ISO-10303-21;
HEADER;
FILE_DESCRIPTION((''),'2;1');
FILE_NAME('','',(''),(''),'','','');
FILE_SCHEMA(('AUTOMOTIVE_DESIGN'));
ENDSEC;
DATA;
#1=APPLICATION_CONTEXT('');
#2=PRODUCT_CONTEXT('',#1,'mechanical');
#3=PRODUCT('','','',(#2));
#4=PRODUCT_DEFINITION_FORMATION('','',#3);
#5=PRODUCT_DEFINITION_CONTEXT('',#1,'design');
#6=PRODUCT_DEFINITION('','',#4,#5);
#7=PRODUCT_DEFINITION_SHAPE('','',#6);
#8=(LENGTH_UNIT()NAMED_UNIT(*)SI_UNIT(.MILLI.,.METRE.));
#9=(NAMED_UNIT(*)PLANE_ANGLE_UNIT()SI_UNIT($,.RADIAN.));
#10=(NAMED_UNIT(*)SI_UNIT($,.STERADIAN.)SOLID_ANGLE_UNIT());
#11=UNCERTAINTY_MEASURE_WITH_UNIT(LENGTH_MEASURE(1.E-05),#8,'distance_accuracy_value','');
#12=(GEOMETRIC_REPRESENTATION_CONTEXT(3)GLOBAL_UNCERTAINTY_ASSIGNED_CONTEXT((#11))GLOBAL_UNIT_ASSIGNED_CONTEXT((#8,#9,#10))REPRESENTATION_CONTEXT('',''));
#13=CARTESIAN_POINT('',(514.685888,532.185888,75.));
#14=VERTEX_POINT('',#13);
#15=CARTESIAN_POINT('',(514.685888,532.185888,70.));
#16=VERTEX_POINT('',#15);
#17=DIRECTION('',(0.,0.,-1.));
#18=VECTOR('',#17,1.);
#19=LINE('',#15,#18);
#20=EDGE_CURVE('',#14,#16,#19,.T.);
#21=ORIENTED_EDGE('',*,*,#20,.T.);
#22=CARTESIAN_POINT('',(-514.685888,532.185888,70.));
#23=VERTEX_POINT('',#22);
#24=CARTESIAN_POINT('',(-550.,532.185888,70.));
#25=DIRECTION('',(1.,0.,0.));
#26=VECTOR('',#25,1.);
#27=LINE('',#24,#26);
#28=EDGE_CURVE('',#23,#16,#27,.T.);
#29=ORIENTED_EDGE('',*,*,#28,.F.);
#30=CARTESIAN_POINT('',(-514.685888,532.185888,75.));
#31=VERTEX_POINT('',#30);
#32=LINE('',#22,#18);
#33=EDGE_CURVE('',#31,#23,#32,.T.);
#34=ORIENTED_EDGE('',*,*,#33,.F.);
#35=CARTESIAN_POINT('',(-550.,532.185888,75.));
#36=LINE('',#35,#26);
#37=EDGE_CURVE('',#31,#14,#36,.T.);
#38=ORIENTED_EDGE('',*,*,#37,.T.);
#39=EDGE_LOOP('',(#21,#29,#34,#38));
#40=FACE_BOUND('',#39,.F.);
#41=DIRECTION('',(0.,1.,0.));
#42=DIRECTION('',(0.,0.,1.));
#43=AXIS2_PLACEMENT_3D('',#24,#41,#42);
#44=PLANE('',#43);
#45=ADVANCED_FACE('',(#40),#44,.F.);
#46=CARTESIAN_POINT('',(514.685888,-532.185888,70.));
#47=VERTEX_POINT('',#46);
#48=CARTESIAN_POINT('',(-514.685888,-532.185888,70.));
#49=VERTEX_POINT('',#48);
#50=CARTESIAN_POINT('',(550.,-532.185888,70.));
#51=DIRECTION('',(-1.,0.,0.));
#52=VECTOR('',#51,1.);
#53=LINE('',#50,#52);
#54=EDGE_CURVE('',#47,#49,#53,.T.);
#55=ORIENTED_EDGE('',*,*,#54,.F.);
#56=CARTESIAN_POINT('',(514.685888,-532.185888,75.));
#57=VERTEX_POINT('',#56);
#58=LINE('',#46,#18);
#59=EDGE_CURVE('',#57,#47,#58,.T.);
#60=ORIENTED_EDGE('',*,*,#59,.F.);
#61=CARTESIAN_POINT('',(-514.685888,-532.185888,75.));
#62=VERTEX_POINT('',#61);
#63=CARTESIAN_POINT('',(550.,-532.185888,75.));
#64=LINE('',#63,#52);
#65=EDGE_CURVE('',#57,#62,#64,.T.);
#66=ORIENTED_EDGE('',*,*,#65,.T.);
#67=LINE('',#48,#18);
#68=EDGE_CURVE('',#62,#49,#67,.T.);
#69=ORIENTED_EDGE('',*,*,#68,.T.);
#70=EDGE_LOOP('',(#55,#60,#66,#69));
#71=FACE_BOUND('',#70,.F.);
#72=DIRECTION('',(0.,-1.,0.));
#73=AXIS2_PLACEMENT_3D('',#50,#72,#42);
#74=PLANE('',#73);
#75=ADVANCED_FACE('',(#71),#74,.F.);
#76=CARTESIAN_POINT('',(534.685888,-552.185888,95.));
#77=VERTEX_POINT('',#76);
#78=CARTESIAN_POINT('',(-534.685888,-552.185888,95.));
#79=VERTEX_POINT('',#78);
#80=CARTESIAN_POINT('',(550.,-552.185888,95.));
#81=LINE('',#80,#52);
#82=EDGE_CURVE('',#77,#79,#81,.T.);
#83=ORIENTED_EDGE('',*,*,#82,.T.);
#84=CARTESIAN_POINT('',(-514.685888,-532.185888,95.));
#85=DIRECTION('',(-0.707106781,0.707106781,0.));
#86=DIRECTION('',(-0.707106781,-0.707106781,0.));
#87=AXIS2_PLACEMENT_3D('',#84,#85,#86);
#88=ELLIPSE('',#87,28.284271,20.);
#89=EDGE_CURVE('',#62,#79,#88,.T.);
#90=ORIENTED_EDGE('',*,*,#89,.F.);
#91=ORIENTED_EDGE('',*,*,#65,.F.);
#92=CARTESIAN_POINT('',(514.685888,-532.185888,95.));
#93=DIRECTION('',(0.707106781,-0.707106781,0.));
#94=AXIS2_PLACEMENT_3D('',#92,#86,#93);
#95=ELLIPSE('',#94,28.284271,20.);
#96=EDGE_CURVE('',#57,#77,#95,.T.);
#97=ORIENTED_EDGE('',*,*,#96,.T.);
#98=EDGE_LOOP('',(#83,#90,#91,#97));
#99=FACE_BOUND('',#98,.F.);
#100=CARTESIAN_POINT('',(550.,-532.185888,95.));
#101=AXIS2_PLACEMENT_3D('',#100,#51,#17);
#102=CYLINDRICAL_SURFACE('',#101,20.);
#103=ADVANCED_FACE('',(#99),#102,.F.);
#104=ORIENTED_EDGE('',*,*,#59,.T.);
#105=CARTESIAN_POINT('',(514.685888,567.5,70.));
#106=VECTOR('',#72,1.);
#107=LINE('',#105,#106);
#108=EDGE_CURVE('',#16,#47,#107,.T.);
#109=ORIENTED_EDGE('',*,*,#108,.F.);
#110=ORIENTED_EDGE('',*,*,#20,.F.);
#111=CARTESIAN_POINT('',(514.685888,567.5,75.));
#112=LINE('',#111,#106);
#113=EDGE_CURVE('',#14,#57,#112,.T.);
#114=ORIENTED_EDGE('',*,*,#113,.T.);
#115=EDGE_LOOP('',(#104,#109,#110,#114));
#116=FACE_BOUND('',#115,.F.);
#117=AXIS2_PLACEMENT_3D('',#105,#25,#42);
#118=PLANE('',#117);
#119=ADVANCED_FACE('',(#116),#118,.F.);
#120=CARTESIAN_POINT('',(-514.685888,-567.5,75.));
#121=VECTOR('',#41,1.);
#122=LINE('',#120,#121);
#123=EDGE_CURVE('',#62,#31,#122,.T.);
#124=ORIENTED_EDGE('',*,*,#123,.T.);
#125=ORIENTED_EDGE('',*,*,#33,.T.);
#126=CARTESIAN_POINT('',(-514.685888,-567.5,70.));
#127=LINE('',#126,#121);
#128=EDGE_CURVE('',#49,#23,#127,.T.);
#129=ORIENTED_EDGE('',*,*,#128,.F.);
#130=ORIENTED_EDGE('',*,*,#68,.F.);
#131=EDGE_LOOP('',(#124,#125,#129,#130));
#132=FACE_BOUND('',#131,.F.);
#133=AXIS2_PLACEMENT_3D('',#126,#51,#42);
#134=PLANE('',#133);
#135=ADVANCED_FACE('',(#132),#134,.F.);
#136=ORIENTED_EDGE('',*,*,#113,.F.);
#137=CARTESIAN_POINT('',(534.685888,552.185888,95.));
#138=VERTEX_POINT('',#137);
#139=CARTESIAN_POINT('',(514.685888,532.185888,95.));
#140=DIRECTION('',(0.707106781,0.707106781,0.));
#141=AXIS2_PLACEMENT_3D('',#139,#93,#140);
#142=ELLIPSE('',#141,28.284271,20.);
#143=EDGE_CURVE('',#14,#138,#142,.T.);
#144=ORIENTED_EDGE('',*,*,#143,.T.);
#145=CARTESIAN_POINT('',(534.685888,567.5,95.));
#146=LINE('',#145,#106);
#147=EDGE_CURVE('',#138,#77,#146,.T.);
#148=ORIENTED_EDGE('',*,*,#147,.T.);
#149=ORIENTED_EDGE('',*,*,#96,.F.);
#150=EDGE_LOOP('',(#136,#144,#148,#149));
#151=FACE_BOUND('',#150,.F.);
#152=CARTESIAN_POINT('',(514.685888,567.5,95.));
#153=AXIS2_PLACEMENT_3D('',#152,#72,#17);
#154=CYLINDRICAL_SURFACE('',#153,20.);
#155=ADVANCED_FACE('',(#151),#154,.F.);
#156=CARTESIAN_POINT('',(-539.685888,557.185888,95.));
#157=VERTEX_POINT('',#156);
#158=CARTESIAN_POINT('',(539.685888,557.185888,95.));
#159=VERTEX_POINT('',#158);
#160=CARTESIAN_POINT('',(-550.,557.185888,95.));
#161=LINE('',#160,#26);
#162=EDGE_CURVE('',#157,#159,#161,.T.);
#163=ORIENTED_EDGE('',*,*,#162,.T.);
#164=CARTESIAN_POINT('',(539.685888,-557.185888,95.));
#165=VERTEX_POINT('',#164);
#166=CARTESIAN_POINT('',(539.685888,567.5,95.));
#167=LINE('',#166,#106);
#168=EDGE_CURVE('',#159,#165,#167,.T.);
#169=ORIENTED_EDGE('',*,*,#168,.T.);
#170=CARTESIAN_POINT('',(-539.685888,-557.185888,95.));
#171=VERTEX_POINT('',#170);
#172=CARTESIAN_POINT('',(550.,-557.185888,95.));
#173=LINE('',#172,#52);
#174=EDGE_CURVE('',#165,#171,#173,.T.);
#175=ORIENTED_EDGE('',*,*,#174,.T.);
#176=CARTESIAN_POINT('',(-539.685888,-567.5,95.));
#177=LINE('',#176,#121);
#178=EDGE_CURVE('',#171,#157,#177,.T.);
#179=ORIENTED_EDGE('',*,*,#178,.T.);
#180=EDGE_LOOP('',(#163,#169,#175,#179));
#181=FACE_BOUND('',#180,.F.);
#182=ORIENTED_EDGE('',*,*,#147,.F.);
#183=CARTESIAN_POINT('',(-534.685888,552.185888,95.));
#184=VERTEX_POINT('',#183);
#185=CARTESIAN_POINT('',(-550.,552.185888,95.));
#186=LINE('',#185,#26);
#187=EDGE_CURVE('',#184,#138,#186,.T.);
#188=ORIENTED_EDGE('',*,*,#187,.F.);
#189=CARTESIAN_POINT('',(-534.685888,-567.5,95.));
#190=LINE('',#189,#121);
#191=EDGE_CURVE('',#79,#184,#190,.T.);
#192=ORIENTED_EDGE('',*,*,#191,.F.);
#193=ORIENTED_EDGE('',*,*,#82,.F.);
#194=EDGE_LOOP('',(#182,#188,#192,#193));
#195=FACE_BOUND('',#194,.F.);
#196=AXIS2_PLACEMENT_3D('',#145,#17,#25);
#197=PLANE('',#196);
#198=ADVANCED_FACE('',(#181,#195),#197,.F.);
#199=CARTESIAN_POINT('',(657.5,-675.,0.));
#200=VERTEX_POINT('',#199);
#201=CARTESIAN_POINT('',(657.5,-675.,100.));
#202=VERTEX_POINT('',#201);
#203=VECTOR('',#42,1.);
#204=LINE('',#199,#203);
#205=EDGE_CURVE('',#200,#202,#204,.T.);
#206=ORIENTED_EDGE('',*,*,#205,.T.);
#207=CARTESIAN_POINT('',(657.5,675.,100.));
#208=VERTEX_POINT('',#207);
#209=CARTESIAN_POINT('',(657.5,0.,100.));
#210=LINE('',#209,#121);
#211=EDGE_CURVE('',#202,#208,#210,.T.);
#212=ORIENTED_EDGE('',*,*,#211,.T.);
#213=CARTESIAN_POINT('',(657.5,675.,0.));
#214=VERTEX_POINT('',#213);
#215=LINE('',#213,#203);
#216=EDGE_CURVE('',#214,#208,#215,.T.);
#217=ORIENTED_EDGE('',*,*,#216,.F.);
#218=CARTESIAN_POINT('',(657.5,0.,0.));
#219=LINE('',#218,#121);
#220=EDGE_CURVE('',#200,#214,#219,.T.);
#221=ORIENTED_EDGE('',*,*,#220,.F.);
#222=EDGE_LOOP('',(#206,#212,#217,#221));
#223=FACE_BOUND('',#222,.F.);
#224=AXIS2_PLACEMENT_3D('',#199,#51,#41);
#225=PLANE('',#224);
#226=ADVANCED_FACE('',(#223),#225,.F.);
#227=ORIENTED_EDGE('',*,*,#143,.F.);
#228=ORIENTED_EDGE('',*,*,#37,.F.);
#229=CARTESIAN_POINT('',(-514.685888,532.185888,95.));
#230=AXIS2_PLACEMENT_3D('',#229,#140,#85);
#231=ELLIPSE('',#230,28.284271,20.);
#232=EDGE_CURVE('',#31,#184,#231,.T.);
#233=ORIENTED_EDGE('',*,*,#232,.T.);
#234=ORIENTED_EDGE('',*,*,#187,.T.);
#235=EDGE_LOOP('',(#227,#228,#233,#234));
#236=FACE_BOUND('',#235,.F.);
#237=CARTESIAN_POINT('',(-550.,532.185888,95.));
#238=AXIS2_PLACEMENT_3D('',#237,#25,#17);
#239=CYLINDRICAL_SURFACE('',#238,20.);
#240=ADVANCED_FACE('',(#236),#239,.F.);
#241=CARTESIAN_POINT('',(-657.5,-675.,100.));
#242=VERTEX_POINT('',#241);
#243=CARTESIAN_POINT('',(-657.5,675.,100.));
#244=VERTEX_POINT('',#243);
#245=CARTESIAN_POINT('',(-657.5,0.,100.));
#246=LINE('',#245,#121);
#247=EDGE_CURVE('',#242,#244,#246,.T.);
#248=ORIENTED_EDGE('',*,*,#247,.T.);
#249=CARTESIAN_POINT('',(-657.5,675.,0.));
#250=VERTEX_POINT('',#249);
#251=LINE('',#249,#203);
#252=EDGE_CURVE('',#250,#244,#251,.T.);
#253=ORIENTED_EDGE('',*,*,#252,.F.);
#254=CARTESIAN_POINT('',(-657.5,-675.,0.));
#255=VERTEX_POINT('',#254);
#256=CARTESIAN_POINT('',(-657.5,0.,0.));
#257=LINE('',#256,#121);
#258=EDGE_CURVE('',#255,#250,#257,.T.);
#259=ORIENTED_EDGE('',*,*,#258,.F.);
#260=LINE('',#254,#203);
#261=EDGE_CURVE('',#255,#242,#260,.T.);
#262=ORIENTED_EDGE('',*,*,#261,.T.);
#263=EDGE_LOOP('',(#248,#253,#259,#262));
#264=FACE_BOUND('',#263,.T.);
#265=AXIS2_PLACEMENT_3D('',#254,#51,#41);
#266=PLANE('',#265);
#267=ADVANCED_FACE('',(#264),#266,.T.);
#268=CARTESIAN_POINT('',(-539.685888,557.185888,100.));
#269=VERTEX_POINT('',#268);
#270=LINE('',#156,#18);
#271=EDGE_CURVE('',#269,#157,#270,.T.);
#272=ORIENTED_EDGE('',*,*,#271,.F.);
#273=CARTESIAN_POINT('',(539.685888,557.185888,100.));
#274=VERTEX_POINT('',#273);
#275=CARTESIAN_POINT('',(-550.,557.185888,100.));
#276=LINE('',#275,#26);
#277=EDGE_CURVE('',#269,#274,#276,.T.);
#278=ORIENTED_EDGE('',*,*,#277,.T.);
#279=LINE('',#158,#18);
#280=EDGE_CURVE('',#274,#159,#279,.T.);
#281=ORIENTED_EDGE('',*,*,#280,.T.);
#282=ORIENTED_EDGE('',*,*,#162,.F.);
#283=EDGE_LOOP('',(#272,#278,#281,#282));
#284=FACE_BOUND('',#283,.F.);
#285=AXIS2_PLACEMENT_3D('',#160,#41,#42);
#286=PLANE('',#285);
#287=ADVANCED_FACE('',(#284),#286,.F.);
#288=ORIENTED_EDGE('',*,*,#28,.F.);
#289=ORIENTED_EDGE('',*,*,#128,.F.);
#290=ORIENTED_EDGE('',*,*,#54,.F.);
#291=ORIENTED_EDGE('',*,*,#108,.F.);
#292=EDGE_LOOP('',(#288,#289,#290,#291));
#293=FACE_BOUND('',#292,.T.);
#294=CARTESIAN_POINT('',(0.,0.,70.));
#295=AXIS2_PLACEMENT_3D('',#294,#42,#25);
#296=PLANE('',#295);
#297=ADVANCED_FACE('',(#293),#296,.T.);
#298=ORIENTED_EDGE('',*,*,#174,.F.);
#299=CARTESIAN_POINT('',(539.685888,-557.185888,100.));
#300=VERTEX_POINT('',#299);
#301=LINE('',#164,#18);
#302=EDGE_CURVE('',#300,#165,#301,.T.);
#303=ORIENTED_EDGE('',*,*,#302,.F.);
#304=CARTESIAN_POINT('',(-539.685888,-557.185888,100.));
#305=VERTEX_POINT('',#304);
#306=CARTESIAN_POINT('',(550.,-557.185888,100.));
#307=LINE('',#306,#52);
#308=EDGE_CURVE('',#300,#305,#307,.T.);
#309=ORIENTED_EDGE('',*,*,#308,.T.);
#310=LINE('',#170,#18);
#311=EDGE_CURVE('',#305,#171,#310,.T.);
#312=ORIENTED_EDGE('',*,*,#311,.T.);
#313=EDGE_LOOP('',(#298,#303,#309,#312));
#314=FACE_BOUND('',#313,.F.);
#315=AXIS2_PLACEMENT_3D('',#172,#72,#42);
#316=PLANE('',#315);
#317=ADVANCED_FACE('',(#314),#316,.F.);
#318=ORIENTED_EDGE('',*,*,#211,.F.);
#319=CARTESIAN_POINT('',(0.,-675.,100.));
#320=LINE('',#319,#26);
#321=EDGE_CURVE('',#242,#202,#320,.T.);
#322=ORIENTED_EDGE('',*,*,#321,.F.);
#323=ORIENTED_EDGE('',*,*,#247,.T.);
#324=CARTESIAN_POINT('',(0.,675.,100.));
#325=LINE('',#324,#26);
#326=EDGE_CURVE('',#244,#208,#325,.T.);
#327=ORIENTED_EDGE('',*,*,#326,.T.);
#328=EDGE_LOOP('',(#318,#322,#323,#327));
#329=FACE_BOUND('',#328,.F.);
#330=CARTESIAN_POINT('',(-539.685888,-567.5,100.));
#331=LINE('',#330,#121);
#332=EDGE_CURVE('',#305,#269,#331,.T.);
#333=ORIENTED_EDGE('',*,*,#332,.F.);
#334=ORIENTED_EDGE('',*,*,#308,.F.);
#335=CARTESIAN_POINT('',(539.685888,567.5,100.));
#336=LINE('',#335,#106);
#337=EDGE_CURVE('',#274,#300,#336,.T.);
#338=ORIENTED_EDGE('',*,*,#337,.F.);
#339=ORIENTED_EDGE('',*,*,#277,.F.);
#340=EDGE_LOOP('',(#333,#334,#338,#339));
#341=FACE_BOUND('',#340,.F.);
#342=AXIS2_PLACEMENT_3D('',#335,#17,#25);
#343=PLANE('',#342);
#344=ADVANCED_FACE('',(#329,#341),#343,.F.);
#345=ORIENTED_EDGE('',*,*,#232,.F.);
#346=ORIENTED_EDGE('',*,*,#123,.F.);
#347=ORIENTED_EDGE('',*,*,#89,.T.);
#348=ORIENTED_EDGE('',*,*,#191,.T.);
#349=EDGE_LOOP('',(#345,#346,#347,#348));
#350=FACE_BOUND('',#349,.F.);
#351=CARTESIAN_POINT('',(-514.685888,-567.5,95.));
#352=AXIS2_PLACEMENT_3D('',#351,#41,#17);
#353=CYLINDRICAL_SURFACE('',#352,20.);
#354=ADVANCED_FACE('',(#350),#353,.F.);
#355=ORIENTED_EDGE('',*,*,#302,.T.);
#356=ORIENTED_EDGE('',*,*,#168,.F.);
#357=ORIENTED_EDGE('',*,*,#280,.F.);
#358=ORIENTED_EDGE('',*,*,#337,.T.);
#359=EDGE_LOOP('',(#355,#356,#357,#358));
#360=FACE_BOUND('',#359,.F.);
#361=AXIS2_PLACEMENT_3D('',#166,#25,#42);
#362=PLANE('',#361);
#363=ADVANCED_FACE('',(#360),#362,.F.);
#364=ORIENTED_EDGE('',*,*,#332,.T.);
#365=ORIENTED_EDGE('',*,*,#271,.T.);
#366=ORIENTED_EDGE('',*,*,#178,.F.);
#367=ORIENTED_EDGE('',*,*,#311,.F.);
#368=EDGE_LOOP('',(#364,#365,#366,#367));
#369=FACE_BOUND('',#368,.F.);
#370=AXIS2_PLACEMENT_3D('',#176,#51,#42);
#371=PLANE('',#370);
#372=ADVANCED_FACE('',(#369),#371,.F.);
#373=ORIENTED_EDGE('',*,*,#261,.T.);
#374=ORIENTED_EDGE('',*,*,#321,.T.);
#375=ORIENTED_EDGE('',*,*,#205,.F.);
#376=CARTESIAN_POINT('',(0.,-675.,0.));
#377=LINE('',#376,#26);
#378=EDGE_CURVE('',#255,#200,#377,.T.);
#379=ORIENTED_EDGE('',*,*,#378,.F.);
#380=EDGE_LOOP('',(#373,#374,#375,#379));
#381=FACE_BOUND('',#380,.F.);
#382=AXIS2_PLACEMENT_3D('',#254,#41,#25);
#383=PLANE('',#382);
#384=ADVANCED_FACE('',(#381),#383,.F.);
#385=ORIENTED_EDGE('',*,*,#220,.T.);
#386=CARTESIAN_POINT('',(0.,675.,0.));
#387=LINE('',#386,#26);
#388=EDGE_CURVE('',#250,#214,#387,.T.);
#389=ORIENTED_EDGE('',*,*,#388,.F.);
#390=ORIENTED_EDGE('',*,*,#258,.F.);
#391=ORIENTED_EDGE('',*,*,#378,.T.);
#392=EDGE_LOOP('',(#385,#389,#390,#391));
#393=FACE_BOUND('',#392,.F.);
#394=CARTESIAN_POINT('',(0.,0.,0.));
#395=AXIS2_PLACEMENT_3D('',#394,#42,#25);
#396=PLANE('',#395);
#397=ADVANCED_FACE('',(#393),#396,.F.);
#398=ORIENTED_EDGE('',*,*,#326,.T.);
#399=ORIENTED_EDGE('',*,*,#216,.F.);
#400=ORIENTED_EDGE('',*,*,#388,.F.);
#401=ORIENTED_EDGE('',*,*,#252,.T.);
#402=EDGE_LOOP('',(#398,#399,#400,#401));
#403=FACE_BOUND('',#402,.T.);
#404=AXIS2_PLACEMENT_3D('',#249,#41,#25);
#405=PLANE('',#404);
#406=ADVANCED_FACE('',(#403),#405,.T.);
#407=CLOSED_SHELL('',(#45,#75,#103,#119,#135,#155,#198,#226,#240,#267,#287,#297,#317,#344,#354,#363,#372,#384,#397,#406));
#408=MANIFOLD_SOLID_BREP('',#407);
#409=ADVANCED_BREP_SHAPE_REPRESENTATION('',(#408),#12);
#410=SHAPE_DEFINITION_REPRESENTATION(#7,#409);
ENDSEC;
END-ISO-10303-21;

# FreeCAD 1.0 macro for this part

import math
import FreeCAD as App
import Part
import Sketcher

V = App.Vector
Q = App.Units.Quantity

doc = App.newDocument("Part")
body = doc.addObject("PartDesign::Body", "Body")

sketch1 = body.newObject("Sketcher::SketchObject", "Sketch")
sketch1.AttachmentSupport = (doc.getObject("XY_Plane"), [""])
sketch1.MapMode = "FlatFace"
sketch1.addGeometry([
    Part.LineSegment(V(-658, 675, 0), V(-658, -675, 0)),
    Part.LineSegment(V(-658, -675, 0), V(658, -675, 0)),
    Part.LineSegment(V(658, -675, 0), V(658, 675, 0)),
    Part.LineSegment(V(658, 675, 0), V(-658, 675, 0)),
], False)
sketch1.addConstraint([
    Sketcher.Constraint("Coincident", 0, 2, 1, 1),
    Sketcher.Constraint("Coincident", 1, 2, 2, 1),
    Sketcher.Constraint("Coincident", 2, 2, 3, 1),
    Sketcher.Constraint("Coincident", 3, 2, 0, 1),
    Sketcher.Constraint("Vertical", 0),
    Sketcher.Constraint("Horizontal", 1),
    Sketcher.Constraint("Vertical", 2),
    Sketcher.Constraint("Horizontal", 3),
    Sketcher.Constraint("Symmetric", 0, 2, 2, 2, -1, 1),
    Sketcher.Constraint("DistanceX", 1, 1, 1, 2, Q("1315 mm")),
    Sketcher.Constraint("DistanceY", 0, 2, 0, 1, Q("1350 mm")),
])
pad1 = body.newObject("PartDesign::Pad", "Pad")
pad1.Profile = sketch1
pad1.Length = 100

sketch2 = body.newObject("Sketcher::SketchObject", "Sketch001")
sketch2.AttachmentSupport = (doc.getObject("XY_Plane"), [""])
sketch2.MapMode = "FlatFace"
sketch2.AttachmentOffset = App.Placement(V(0, 0, 100), App.Rotation())
sketch2.addGeometry([
    Part.LineSegment(V(-550, 568, 0), V(-550, -568, 0)),
    Part.LineSegment(V(-550, -568, 0), V(550, -568, 0)),
    Part.LineSegment(V(550, -568, 0), V(550, 568, 0)),
    Part.LineSegment(V(550, 568, 0), V(-550, 568, 0)),
], False)
sketch2.addConstraint([
    Sketcher.Constraint("Coincident", 0, 2, 1, 1),
    Sketcher.Constraint("Coincident", 1, 2, 2, 1),
    Sketcher.Constraint("Coincident", 2, 2, 3, 1),
    Sketcher.Constraint("Coincident", 3, 2, 0, 1),
    Sketcher.Constraint("Vertical", 0),
    Sketcher.Constraint("Horizontal", 1),
    Sketcher.Constraint("Vertical", 2),
    Sketcher.Constraint("Horizontal", 3),
    Sketcher.Constraint("Symmetric", 0, 2, 2, 2, -1, 1),
    Sketcher.Constraint("DistanceX", 1, 1, 1, 2, Q("1100 mm")),
    Sketcher.Constraint("DistanceY", 0, 2, 0, 1, Q("1135 mm")),
])
pocket1 = body.newObject("PartDesign::Pocket", "Pocket")
pocket1.Profile = sketch2
pocket1.Length = 30

sketch3 = body.newObject("Sketcher::SketchObject", "Sketch002")
sketch3.AttachmentSupport = (doc.getObject("YZ_Plane"), [""])
sketch3.MapMode = "FlatFace"
sketch3.addGeometry([
    Part.LineSegment(V(-568, 100, 0), V(-568, 70, 0)),
    Part.LineSegment(V(-568, 70, 0), V(-532, 70, 0)),
    Part.LineSegment(V(-532, 70, 0), V(-532, 75, 0)),
    Part.ArcOfCircle(Part.Circle(V(-532, 95, 0), V(0, 0, 1), 20), math.radians(180), math.radians(270)),
    Part.LineSegment(V(-552, 95, 0), V(-557, 95, 0)),
    Part.LineSegment(V(-557, 95, 0), V(-557, 100, 0)),
    Part.LineSegment(V(-557, 100, 0), V(-568, 100, 0)),
], False)
sketch3.addConstraint([
    Sketcher.Constraint("Coincident", 0, 2, 1, 1),
    Sketcher.Constraint("Coincident", 1, 2, 2, 1),
    Sketcher.Constraint("Coincident", 2, 2, 3, 2),
    Sketcher.Constraint("Coincident", 3, 1, 4, 1),
    Sketcher.Constraint("Coincident", 4, 2, 5, 1),
    Sketcher.Constraint("Coincident", 5, 2, 6, 1),
    Sketcher.Constraint("Coincident", 6, 2, 0, 1),
    Sketcher.Constraint("Vertical", 0),
    Sketcher.Constraint("Horizontal", 1),
    Sketcher.Constraint("Vertical", 2),
    Sketcher.Constraint("Horizontal", 4),
    Sketcher.Constraint("Vertical", 5),
    Sketcher.Constraint("Horizontal", 6),
    Sketcher.Constraint("Vertical", 3, 3, 1, 2),
    Sketcher.Constraint("Equal", 4, 2),
    Sketcher.Constraint("Equal", 2, 5),
    Sketcher.Constraint("Radius", 3, Q("20 mm")),
    Sketcher.Constraint("DistanceX", 4, 2, 4, 1, Q("5 mm")),
    Sketcher.Constraint("DistanceY", 0, 2, 0, 1, Q("30 mm")),
    Sketcher.Constraint("DistanceY", -1, 1, 3, 3, Q("95 mm")),
    Sketcher.Constraint("DistanceX", 0, 2, -1, 1, Q("567.5 mm")),
    Sketcher.Constraint("DistanceX", 1, 1, 1, 2, Q("35.314112 mm")),
])

sketch4 = body.newObject("Sketcher::SketchObject", "Sketch003")
sketch4.AttachmentSupport = (doc.getObject("XY_Plane"), [""])
sketch4.MapMode = "FlatFace"
sketch4.AttachmentOffset = App.Placement(V(0, 0, 70), App.Rotation())
sketch4.addGeometry([
    Part.LineSegment(V(550, 568, 0), V(550, -568, 0)),
    Part.LineSegment(V(550, -568, 0), V(-550, -568, 0)),
    Part.LineSegment(V(-550, -568, 0), V(-550, 568, 0)),
    Part.LineSegment(V(-550, 568, 0), V(550, 568, 0)),
], False)
sketch4.addConstraint([
    Sketcher.Constraint("Coincident", 0, 2, 1, 1),
    Sketcher.Constraint("Coincident", 1, 2, 2, 1),
    Sketcher.Constraint("Coincident", 2, 2, 3, 1),
    Sketcher.Constraint("Coincident", 3, 2, 0, 1),
    Sketcher.Constraint("Vertical", 0),
    Sketcher.Constraint("Horizontal", 1),
    Sketcher.Constraint("Vertical", 2),
    Sketcher.Constraint("Horizontal", 3),
    Sketcher.Constraint("Symmetric", 0, 2, 2, 2, -1, 1),
    Sketcher.Constraint("DistanceX", 1, 2, 1, 1, Q("1100 mm")),
    Sketcher.Constraint("DistanceY", 0, 2, 0, 1, Q("1135 mm")),
])
doc.recompute()

additivepipe = body.newObject("PartDesign::AdditivePipe", "AdditivePipe")
additivepipe.Profile = sketch3
additivepipe.Spine = (sketch4, ["Edge1", "Edge2", "Edge3", "Edge4"])
additivepipe.Transition = "Right corner"

doc.recompute()
